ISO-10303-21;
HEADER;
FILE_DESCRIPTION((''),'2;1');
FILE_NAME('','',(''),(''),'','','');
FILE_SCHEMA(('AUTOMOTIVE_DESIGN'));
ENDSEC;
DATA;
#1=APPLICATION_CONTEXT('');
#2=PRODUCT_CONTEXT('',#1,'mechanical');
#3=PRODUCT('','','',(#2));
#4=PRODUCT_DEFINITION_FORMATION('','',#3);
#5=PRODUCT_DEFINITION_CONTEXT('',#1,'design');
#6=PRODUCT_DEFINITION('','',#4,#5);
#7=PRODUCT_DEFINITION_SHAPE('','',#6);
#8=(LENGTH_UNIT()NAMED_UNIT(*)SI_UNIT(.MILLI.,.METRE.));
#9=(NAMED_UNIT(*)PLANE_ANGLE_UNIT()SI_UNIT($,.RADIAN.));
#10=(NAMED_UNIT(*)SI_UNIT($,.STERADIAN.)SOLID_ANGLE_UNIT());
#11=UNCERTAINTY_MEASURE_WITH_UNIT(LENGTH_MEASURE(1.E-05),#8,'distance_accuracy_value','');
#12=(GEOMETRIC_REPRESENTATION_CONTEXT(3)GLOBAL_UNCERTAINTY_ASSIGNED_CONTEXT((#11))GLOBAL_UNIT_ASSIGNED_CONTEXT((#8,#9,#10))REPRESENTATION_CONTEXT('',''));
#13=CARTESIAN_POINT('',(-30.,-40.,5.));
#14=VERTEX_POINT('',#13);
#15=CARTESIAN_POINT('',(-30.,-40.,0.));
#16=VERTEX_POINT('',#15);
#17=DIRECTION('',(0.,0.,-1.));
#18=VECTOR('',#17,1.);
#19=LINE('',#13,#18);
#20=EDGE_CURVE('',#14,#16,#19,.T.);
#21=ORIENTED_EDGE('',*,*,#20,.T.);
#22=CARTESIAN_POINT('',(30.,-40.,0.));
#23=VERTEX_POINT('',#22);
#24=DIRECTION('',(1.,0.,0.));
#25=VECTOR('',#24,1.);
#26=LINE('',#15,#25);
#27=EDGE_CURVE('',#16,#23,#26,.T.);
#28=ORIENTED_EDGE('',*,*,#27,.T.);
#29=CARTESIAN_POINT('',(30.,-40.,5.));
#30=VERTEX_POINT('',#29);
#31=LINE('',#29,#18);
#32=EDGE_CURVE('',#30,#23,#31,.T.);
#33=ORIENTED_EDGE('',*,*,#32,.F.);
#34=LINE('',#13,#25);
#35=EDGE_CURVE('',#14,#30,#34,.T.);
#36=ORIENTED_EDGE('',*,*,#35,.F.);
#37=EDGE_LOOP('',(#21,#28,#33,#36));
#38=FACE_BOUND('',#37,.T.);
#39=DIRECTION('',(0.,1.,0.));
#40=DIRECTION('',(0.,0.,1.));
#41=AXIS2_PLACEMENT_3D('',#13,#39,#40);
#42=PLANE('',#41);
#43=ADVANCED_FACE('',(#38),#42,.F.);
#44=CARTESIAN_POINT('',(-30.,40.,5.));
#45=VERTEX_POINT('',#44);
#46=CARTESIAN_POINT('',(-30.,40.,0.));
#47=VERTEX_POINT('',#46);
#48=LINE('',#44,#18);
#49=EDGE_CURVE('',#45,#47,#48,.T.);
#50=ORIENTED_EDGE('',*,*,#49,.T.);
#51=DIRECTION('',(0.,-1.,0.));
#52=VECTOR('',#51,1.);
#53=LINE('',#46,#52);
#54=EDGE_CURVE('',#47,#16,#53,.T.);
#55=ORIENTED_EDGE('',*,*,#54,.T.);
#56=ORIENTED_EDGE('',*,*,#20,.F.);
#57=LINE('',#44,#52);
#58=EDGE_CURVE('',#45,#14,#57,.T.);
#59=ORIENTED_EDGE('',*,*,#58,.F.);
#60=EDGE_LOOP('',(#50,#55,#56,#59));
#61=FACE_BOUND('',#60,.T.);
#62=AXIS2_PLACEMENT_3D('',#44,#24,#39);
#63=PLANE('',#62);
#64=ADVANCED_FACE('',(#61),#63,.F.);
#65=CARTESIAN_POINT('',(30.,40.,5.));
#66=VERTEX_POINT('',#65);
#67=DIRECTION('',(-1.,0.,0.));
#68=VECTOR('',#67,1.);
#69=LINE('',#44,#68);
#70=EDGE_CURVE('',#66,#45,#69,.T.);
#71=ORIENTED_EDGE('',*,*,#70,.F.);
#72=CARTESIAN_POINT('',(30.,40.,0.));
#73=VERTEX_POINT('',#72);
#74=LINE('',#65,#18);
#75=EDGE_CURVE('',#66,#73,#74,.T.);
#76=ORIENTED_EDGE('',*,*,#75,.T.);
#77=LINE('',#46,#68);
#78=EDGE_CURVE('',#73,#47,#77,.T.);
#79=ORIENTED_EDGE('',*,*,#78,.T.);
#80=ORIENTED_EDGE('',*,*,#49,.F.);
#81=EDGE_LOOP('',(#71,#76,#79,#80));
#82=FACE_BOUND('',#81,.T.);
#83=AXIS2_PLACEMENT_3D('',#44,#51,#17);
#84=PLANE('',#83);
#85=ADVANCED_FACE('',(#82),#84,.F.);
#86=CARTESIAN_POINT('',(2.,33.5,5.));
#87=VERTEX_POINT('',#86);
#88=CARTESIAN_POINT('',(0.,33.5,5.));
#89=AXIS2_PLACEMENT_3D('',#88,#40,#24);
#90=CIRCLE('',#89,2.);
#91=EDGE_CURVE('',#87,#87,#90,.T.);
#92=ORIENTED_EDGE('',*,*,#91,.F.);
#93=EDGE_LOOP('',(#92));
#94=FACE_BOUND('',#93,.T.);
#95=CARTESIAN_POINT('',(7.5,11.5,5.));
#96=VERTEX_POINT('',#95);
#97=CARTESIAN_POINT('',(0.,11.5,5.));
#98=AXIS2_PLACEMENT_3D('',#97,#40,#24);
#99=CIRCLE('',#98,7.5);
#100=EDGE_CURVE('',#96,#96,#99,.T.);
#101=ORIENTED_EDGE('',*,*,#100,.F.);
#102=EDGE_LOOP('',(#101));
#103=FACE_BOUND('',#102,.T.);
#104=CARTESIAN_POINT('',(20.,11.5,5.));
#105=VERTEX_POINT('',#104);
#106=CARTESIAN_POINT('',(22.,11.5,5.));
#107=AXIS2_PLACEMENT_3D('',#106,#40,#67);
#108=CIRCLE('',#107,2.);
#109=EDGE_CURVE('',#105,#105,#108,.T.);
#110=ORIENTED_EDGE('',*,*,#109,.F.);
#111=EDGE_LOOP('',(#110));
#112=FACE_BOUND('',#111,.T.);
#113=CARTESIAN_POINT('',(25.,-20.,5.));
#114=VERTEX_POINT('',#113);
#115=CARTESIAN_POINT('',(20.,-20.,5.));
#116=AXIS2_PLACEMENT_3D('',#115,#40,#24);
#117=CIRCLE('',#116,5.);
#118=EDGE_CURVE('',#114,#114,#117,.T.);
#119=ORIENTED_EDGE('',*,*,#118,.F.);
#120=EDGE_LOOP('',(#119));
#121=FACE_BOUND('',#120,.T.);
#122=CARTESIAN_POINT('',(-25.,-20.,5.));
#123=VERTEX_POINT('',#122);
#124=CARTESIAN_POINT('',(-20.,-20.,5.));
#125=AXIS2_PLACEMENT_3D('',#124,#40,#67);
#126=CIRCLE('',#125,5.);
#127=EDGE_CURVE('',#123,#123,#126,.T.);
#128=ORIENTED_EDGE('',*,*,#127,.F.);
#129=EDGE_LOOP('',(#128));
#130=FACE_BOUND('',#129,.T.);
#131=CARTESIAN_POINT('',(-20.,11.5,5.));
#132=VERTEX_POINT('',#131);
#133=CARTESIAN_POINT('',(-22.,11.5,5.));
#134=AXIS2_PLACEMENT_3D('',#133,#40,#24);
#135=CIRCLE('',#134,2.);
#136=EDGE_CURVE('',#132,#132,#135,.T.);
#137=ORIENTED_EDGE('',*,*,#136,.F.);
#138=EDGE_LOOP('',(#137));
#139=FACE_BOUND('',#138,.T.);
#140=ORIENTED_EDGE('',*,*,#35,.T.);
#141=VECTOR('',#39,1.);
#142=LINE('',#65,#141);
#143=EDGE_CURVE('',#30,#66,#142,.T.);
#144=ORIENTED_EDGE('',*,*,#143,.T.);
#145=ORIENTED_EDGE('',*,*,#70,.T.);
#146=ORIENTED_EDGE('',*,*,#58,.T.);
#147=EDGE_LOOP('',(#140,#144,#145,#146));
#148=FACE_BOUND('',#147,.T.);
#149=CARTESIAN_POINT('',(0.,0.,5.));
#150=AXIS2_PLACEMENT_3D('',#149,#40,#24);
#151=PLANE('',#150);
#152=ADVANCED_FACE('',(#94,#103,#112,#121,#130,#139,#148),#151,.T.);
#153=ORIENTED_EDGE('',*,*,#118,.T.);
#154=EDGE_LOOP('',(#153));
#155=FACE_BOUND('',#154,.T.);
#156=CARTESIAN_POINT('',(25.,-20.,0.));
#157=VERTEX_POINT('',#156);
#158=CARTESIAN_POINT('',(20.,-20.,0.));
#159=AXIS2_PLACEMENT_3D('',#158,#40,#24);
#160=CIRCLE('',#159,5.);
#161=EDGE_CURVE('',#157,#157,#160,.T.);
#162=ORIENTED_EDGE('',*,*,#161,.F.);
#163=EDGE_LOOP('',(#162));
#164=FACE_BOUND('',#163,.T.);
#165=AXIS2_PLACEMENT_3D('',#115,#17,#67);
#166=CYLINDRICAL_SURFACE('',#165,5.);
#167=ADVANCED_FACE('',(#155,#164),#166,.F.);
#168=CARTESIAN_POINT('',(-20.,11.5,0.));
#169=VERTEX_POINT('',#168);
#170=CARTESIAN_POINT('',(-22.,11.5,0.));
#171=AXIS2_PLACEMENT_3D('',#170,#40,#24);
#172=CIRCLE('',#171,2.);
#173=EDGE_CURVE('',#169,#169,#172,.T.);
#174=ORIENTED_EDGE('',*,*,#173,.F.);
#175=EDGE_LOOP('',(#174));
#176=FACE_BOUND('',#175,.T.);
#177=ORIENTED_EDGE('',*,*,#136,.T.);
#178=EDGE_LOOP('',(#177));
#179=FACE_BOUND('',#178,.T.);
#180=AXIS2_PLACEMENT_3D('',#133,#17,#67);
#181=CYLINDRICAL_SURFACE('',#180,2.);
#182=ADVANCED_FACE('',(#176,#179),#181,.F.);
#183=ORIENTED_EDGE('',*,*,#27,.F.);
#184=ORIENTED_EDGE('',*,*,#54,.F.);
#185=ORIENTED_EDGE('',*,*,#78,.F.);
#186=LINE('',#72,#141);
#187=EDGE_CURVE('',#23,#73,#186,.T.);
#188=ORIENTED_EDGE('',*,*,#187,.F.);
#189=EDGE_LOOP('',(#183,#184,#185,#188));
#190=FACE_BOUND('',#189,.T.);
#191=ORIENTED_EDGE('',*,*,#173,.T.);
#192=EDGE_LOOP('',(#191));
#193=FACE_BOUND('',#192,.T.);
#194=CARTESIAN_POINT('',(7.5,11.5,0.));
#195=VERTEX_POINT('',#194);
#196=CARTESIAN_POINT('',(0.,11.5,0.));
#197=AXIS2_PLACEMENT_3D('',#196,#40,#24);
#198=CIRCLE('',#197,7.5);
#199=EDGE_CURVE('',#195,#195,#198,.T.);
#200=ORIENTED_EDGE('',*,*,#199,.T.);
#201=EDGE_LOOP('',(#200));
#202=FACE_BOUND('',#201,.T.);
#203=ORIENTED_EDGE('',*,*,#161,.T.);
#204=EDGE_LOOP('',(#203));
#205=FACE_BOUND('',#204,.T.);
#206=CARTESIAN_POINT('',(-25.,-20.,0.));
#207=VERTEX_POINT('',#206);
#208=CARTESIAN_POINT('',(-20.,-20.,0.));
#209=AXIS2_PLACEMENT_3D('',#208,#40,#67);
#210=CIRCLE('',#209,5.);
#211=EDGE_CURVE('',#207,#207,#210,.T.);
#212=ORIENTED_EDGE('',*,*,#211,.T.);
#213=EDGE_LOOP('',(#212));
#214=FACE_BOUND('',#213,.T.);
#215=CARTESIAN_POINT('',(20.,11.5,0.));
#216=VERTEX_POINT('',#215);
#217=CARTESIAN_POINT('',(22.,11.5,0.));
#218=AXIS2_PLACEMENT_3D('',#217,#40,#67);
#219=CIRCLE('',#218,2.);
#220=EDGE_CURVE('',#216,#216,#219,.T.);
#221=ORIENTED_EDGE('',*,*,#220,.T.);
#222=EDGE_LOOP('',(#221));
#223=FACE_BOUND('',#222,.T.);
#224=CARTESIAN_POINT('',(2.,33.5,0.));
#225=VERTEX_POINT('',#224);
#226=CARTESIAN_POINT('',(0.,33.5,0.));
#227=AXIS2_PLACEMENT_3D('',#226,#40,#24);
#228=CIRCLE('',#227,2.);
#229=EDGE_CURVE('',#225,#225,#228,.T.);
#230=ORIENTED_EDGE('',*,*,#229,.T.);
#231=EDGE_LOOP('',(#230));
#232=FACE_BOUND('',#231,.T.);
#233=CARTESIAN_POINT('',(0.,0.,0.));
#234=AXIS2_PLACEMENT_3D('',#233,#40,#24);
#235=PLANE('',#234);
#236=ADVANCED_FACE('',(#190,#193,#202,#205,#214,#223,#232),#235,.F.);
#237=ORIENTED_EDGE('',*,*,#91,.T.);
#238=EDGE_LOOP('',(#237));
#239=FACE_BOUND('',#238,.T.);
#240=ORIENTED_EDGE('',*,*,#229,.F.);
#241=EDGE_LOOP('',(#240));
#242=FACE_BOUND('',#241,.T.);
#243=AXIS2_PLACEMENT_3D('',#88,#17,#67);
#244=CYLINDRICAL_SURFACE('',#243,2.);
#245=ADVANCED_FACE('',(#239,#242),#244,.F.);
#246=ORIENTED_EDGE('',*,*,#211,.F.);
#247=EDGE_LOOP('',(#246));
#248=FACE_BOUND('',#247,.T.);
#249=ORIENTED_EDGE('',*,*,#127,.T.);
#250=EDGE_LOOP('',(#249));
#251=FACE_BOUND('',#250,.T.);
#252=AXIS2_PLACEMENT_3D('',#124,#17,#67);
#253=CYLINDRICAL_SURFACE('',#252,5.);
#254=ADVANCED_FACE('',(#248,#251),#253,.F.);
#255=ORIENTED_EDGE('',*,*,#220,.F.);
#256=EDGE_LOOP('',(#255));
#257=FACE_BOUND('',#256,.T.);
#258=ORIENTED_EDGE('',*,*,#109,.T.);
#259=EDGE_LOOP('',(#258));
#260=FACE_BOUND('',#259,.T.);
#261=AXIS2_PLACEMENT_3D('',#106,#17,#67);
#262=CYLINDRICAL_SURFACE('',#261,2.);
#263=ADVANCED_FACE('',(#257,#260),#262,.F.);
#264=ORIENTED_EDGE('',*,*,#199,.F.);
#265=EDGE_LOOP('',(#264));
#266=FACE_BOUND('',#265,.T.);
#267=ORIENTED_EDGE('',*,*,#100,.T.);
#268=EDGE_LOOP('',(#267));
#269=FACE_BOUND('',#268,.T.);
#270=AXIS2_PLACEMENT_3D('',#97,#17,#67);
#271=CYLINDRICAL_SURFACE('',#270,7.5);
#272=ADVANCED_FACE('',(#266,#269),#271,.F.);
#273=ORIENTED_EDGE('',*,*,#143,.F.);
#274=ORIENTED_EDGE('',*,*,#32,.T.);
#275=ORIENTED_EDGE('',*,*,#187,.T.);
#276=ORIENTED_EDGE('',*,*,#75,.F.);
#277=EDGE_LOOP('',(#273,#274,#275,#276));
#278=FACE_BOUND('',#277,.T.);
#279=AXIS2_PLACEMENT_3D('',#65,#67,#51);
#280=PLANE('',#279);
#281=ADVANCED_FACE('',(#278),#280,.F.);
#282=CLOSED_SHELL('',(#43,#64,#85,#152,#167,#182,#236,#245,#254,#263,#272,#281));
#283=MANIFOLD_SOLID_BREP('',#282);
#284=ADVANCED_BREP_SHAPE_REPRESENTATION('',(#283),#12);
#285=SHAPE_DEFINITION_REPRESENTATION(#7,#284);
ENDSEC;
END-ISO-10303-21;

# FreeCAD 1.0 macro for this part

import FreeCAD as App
import Part
import Sketcher
from FreeCAD import Vector

doc = App.newDocument("Part")
body = doc.addObject("PartDesign::Body", "Body")

# Sketch on XY plane
sketch1 = body.newObject("Sketcher::SketchObject", "Sketch")
sketch1.AttachmentSupport = (doc.getObject("XY_Plane"), [""])
sketch1.MapMode = "FlatFace"
sketch1.addGeometry(Part.LineSegment(Vector(-30, 40, 0), Vector(-30, -40, 0)), False)
sketch1.addGeometry(Part.LineSegment(Vector(-30, -40, 0), Vector(30, -40, 0)), False)
sketch1.addGeometry(Part.LineSegment(Vector(30, -40, 0), Vector(30, 40, 0)), False)
sketch1.addGeometry(Part.LineSegment(Vector(30, 40, 0), Vector(-30, 40, 0)), False)
sketch1.addGeometry(Part.Circle(Vector(-20, -20, 0), Vector(0, 0, 1), 5), False)
sketch1.addGeometry(Part.Circle(Vector(20, -20, 0), Vector(0, 0, 1), 5), False)
sketch1.addGeometry(Part.Circle(Vector(-22, 11.5, 0), Vector(0, 0, 1), 2), False)
sketch1.addGeometry(Part.Circle(Vector(0, 11.5, 0), Vector(0, 0, 1), 7.5), False)
sketch1.addGeometry(Part.Circle(Vector(22, 11.5, 0), Vector(0, 0, 1), 2), False)
sketch1.addGeometry(Part.Circle(Vector(0, 33.5, 0), Vector(0, 0, 1), 2), False)
sketch1.addConstraint(Sketcher.Constraint("Coincident", 0, 2, 1, 1))
sketch1.addConstraint(Sketcher.Constraint("Coincident", 1, 2, 2, 1))
sketch1.addConstraint(Sketcher.Constraint("Coincident", 2, 2, 3, 1))
sketch1.addConstraint(Sketcher.Constraint("Coincident", 3, 2, 0, 1))
sketch1.addConstraint(Sketcher.Constraint("Vertical", 0))
sketch1.addConstraint(Sketcher.Constraint("Horizontal", 1))
sketch1.addConstraint(Sketcher.Constraint("Vertical", 2))
sketch1.addConstraint(Sketcher.Constraint("Horizontal", 3))
sketch1.addConstraint(Sketcher.Constraint("Equal", 4, 5))
sketch1.addConstraint(Sketcher.Constraint("Equal", 6, 8))
sketch1.addConstraint(Sketcher.Constraint("Equal", 8, 9))
sketch1.addConstraint(Sketcher.Constraint("Symmetric", 0, 2, 2, 2, -1, 1))
sketch1.addConstraint(Sketcher.Constraint("Symmetric", 4, 3, 5, 3, -2))
sketch1.addConstraint(Sketcher.Constraint("Symmetric", 6, 3, 8, 3, -2))
sketch1.addConstraint(Sketcher.Constraint("PointOnObject", 7, 3, -2))
sketch1.addConstraint(Sketcher.Constraint("PointOnObject", 9, 3, -2))
sketch1.addConstraint(Sketcher.Constraint("Horizontal", 6, 3, 7, 3))
sketch1.addConstraint(Sketcher.Constraint("Diameter", 4, 10.0))
sketch1.addConstraint(Sketcher.Constraint("Diameter", 6, 4.0))
sketch1.addConstraint(Sketcher.Constraint("Diameter", 7, 15.0))
sketch1.addConstraint(Sketcher.Constraint("DistanceX", 1, 1, 1, 2, 60.0))
sketch1.addConstraint(Sketcher.Constraint("DistanceY", 0, 2, 0, 1, 80.0))
sketch1.addConstraint(Sketcher.Constraint("DistanceX", 4, 3, -1, 1, 20.0))
sketch1.addConstraint(Sketcher.Constraint("DistanceY", 4, 3, -1, 1, 20.0))
sketch1.addConstraint(Sketcher.Constraint("DistanceX", 6, 3, -1, 1, 22.0))
sketch1.addConstraint(Sketcher.Constraint("DistanceY", 7, 3, 9, 3, 22.0))
sketch1.addConstraint(Sketcher.Constraint("DistanceY", -1, 1, 6, 3, 11.5))
pad1 = body.newObject("PartDesign::Pad", "Pad")
pad1.Profile = sketch1
pad1.Length = 5

doc.recompute()
